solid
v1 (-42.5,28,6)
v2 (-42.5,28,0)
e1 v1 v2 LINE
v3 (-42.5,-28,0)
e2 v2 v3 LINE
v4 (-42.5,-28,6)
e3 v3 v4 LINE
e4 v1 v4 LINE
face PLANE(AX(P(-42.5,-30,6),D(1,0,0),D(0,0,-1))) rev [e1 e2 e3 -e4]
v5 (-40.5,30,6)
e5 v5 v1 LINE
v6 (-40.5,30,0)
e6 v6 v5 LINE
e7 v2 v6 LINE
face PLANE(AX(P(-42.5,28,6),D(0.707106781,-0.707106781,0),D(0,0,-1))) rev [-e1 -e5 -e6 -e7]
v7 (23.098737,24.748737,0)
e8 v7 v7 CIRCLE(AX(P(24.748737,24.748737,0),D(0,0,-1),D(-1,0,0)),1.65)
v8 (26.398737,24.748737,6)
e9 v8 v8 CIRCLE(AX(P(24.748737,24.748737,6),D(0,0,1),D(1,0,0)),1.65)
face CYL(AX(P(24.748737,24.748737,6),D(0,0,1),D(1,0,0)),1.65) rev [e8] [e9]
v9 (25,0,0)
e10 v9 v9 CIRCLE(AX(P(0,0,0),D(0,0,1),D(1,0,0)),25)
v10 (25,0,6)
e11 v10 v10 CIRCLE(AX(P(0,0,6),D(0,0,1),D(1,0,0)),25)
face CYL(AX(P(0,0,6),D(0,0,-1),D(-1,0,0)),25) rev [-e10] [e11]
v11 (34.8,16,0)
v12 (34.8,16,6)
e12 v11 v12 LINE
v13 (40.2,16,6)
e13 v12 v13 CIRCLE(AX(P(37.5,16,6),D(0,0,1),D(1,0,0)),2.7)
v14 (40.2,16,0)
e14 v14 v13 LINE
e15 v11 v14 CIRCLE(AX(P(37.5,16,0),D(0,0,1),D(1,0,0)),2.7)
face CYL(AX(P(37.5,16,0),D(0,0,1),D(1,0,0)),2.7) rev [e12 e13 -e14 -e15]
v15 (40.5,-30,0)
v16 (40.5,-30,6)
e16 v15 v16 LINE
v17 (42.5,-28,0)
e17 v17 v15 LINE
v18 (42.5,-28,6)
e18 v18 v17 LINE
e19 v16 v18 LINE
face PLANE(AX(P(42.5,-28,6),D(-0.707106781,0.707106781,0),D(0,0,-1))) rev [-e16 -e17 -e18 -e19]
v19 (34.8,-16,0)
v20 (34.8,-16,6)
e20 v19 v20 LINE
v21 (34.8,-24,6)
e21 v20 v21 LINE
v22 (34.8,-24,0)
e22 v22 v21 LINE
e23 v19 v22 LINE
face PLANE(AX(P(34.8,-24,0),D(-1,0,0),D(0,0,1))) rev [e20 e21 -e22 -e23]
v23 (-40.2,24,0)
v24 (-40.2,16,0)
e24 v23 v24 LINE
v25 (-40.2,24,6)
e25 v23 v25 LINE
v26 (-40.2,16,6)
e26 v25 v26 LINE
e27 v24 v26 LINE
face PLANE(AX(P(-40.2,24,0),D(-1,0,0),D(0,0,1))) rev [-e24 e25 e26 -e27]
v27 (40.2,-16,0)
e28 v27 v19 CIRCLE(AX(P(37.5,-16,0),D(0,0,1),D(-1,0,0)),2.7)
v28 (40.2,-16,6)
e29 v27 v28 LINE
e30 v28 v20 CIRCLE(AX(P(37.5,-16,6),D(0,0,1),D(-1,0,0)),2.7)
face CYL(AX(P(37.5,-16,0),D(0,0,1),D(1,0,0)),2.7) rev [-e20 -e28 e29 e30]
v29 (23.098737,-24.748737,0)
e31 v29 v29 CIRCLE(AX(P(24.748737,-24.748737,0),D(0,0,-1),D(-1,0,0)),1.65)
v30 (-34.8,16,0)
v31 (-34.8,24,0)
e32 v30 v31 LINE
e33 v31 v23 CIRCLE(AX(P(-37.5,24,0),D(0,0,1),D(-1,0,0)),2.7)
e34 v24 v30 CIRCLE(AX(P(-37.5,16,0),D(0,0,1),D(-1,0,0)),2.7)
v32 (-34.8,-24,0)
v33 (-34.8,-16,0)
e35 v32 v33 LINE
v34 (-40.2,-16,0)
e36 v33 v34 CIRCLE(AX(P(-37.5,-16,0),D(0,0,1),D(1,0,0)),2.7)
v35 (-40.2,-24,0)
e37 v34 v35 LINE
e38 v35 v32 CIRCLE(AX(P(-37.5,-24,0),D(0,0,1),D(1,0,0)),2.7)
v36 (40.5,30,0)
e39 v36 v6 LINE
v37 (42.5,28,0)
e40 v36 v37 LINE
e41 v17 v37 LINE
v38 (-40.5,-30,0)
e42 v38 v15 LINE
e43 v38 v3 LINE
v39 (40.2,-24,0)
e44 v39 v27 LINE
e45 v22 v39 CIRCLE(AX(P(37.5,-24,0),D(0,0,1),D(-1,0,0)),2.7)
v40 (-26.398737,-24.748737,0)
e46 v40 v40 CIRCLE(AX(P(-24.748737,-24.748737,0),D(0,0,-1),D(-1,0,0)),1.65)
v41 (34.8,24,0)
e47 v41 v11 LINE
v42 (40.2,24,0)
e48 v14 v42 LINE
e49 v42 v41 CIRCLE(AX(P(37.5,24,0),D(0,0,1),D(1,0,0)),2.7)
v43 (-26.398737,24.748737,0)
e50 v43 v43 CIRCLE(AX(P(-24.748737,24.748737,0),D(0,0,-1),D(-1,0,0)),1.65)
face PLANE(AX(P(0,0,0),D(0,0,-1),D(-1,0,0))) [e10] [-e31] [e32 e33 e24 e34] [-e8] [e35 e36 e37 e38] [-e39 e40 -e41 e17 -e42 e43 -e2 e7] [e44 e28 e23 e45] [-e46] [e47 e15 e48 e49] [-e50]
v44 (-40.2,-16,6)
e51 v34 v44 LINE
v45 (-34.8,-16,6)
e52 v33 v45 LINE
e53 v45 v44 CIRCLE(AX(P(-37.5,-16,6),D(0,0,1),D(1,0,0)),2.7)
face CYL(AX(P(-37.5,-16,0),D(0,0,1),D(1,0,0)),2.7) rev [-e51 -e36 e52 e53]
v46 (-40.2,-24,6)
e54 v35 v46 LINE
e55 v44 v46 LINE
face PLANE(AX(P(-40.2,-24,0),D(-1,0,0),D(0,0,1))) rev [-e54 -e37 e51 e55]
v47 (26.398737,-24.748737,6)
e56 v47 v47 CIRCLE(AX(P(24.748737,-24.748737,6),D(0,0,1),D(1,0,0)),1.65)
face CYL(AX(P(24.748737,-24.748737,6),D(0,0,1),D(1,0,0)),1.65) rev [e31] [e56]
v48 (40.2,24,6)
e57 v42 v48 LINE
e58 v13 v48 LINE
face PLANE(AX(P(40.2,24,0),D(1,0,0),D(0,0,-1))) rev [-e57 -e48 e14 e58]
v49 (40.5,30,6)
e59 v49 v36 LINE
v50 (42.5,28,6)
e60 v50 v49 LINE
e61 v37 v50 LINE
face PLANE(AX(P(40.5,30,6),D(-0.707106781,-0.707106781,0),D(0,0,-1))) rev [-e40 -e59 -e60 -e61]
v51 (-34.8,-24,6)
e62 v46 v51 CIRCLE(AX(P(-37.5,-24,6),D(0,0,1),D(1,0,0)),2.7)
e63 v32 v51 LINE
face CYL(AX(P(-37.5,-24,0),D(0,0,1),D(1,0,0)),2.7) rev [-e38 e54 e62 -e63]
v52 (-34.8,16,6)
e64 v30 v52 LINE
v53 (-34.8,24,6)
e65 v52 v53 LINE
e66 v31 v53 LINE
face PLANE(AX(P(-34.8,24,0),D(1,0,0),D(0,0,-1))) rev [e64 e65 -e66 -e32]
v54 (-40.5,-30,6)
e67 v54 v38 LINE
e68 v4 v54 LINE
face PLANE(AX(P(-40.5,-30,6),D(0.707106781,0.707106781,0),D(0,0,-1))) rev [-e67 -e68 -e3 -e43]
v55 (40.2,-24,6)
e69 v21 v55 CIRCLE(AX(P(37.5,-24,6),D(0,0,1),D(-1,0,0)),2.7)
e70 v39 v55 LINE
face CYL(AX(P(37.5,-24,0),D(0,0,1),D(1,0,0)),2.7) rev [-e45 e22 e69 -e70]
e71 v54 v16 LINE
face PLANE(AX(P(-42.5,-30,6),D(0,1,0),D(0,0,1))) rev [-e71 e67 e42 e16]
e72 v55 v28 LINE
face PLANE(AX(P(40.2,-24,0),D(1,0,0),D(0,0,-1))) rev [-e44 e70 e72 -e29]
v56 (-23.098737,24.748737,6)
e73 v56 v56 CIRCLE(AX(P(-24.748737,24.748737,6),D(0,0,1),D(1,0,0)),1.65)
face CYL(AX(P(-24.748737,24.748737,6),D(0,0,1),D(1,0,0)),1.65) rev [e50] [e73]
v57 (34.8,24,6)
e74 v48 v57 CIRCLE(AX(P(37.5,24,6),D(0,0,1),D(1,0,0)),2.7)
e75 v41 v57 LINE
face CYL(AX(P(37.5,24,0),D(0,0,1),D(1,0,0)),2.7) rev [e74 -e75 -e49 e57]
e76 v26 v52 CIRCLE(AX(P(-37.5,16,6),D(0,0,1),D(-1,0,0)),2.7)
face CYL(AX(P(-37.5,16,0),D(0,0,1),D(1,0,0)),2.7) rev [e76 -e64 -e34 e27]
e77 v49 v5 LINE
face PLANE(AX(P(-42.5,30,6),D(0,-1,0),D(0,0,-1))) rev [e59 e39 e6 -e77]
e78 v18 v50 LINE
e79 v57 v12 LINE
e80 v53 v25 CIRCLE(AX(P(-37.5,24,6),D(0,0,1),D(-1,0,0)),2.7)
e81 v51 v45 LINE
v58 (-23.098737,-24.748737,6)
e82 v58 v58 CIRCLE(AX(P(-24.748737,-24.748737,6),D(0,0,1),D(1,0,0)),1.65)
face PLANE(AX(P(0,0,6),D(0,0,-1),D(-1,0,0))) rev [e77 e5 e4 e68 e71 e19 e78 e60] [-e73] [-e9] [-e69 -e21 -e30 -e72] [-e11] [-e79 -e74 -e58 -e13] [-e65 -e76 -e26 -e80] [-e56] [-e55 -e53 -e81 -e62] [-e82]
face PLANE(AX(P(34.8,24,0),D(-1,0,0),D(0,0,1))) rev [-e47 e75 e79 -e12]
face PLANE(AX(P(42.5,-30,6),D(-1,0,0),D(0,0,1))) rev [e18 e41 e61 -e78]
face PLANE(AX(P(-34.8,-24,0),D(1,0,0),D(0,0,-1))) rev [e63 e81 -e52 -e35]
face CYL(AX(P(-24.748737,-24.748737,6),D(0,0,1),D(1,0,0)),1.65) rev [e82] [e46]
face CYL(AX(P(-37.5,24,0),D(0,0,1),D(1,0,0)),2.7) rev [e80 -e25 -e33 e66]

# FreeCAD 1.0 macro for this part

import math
import FreeCAD as App
import Part
import Sketcher

V = App.Vector
Q = App.Units.Quantity


def edges_at(feature, points):
    """Names of the edges that pass closest to the given points."""
    edges = feature.Shape.Edges
    near = lambda p: min(range(len(edges)), key=lambda i: edges[i].distToShape(Part.Vertex(*p))[0])
    return sorted({f"Edge{near(p) + 1}" for p in points})


def add_polygon(sketch, points):
    """Adds a closed chain of lines whose ends are joined by coincident constraints."""
    first, n = sketch.GeometryCount, len(points)
    for a, b in zip(points, points[1:] + points[:1]):
        sketch.addGeometry(Part.LineSegment(App.Vector(*a, 0), App.Vector(*b, 0)), False)
    for i in range(n):
        sketch.addConstraint(Sketcher.Constraint("Coincident", first + i, 2, first + (i + 1) % n, 1))

doc = App.newDocument("Part")
body = doc.addObject("PartDesign::Body", "Body")

sketch1 = doc.addObject("Sketcher::SketchObject", "Sketch")
body.addObject(sketch1)
sketch1.AttachmentSupport = (doc.XY_Plane, [""])
sketch1.MapMode = "FlatFace"
add_polygon(sketch1, [(-42.5, 30), (-42.5, -30), (42.5, -30), (42.5, 30)])
sketch1.addGeometry(Part.Circle(V(0, 0, 0), V(0, 0, 1), 25), False)
sketch1.addConstraint([
    Sketcher.Constraint("Vertical", 0),
    Sketcher.Constraint("Horizontal", 1),
    Sketcher.Constraint("Vertical", 2),
    Sketcher.Constraint("Horizontal", 3),
    Sketcher.Constraint("Coincident", 4, 3, -1, 1),
    Sketcher.Constraint("Symmetric", 0, 2, 2, 2, -1, 1),
    Sketcher.Constraint("Diameter", 4, Q("50 mm")),
    Sketcher.Constraint("DistanceX", 1, 1, 1, 2, Q("85 mm")),
    Sketcher.Constraint("DistanceY", 0, 2, 0, 1, Q("60 mm")),
])
pad1 = doc.addObject("PartDesign::Pad", "Pad")
body.addObject(pad1)
pad1.Profile = sketch1
pad1.Length = 6

sketch2 = doc.addObject("Sketcher::SketchObject", "Sketch001")
body.addObject(sketch2)
sketch2.AttachmentSupport = (doc.YZ_Plane, [""])
sketch2.MapMode = "FlatFace"
sketch2.AttachmentOffset = App.Placement(V(0, 0, 24.748737), App.Rotation())
add_polygon(sketch2, [(24.748737, -6.49142), (24.748737, 6), (23.098737, 6), (23.098737, -5.5)])
sketch2.addGeometry(Part.LineSegment(V(24.748737, 6, 0), V(24.748737, -6.49142, 0)), True)
sketch2.addConstraint([
    Sketcher.Constraint("Vertical", 0),
    Sketcher.Constraint("Horizontal", 1),
    Sketcher.Constraint("Vertical", 2),
    Sketcher.Constraint("Vertical", 4),
    Sketcher.Constraint("Coincident", 4, 1, 0, 2),
    Sketcher.Constraint("Equal", 0, 4),
    Sketcher.Constraint("Angle", 3, Q("-31 deg")),
    Sketcher.Constraint("DistanceY", 2, 2, 2, 1, Q("11.5 mm")),
    Sketcher.Constraint("DistanceY", -1, 1, 0, 2, Q("6 mm")),
    Sketcher.Constraint("DistanceX", 1, 2, 1, 1, Q("1.65 mm")),
    Sketcher.Constraint("DistanceX", -1, 1, 0, 2, Q("24.748737 mm")),
])
groove = doc.addObject("PartDesign::Groove", "Groove")
body.addObject(groove)
groove.Profile = sketch2
groove.ReferenceAxis = (sketch2, ["Axis0"])
groove.Angle = 360
doc.recompute()

polarpattern = doc.addObject("PartDesign::PolarPattern", "PolarPattern")
body.addObject(polarpattern)
polarpattern.Originals = [groove]
polarpattern.Axis = (doc.Z_Axis, [""])
polarpattern.Angle = 360
polarpattern.Occurrences = 4
body.Tip = polarpattern

sketch3 = doc.addObject("Sketcher::SketchObject", "Sketch002")
body.addObject(sketch3)
sketch3.AttachmentSupport = (doc.XY_Plane, [""])
sketch3.MapMode = "FlatFace"
sketch3.AttachmentOffset = App.Placement(V(0, 0, 6), App.Rotation())
sketch3.addGeometry([
    Part.LineSegment(V(40.2, 16, 0), V(40.2, 24, 0)),
    Part.ArcOfCircle(Part.Circle(V(37.5, 24, 0), V(0, 0, 1), 2.7), math.radians(0), math.radians(180)),
    Part.LineSegment(V(34.8, 24, 0), V(34.8, 16, 0)),
    Part.ArcOfCircle(Part.Circle(V(37.5, 16, 0), V(0, 0, 1), 2.7), math.radians(180), math.radians(360)),
    Part.LineSegment(V(40.2, -24, 0), V(40.2, -16, 0)),
    Part.ArcOfCircle(Part.Circle(V(37.5, -16, 0), V(0, 0, 1), 2.7), math.radians(0), math.radians(180)),
    Part.LineSegment(V(34.8, -16, 0), V(34.8, -24, 0)),
    Part.ArcOfCircle(Part.Circle(V(37.5, -24, 0), V(0, 0, 1), 2.7), math.radians(180), math.radians(360)),
    Part.LineSegment(V(-40.2, 24, 0), V(-40.2, 16, 0)),
    Part.ArcOfCircle(Part.Circle(V(-37.5, 16, 0), V(0, 0, 1), 2.7), math.radians(180), math.radians(360)),
    Part.LineSegment(V(-34.8, 16, 0), V(-34.8, 24, 0)),
    Part.ArcOfCircle(Part.Circle(V(-37.5, 24, 0), V(0, 0, 1), 2.7), math.radians(0), math.radians(180)),
    Part.LineSegment(V(-40.2, -16, 0), V(-40.2, -24, 0)),
    Part.ArcOfCircle(Part.Circle(V(-37.5, -24, 0), V(0, 0, 1), 2.7), math.radians(180), math.radians(360)),
    Part.LineSegment(V(-34.8, -24, 0), V(-34.8, -16, 0)),
    Part.ArcOfCircle(Part.Circle(V(-37.5, -16, 0), V(0, 0, 1), 2.7), math.radians(0), math.radians(180)),
], False)
sketch3.addConstraint([
    Sketcher.Constraint("Tangent", 0, 2, 1, 1),
    Sketcher.Constraint("Tangent", 1, 2, 2, 1),
    Sketcher.Constraint("Tangent", 2, 2, 3, 1),
    Sketcher.Constraint("Tangent", 3, 2, 0, 1),
    Sketcher.Constraint("Tangent", 4, 2, 5, 1),
    Sketcher.Constraint("Tangent", 5, 2, 6, 1),
    Sketcher.Constraint("Tangent", 6, 2, 7, 1),
    Sketcher.Constraint("Tangent", 7, 2, 4, 1),
    Sketcher.Constraint("Tangent", 8, 2, 9, 1),
    Sketcher.Constraint("Tangent", 9, 2, 10, 1),
    Sketcher.Constraint("Tangent", 10, 2, 11, 1),
    Sketcher.Constraint("Tangent", 11, 2, 8, 1),
    Sketcher.Constraint("Tangent", 12, 2, 13, 1),
    Sketcher.Constraint("Tangent", 13, 2, 14, 1),
    Sketcher.Constraint("Tangent", 14, 2, 15, 1),
    Sketcher.Constraint("Tangent", 15, 2, 12, 1),
    Sketcher.Constraint("Vertical", 0),
    Sketcher.Constraint("Vertical", 2),
    Sketcher.Constraint("Vertical", 4),
    Sketcher.Constraint("Vertical", 6),
    Sketcher.Constraint("Vertical", 8),
    Sketcher.Constraint("Vertical", 10),
    Sketcher.Constraint("Vertical", 12),
    Sketcher.Constraint("Vertical", 14),
    Sketcher.Constraint("Equal", 3, 5),
    Sketcher.Constraint("Equal", 7, 9),
    Sketcher.Constraint("Equal", 11, 13),
    Sketcher.Constraint("Symmetric", 5, 3, 9, 3, -1, 1),
    Sketcher.Constraint("Symmetric", 1, 3, 13, 3, -1, 1),
    Sketcher.Constraint("Symmetric", 3, 3, 9, 3, -2),
    Sketcher.Constraint("Horizontal", 1, 3, 11, 3),
    Sketcher.Constraint("Horizontal", 7, 3, 13, 3),
    Sketcher.Constraint("Horizontal", 5, 3, 15, 3),
    Sketcher.Constraint("Radius", 1, Q("2.7 mm")),
    Sketcher.Constraint("DistanceY", 0, 1, 0, 2, Q("8 mm")),
    Sketcher.Constraint("DistanceY", -1, 1, 1, 3, Q("24 mm")),
    Sketcher.Constraint("DistanceX", 9, 3, 3, 3, Q("75 mm")),
])
pocket1 = doc.addObject("PartDesign::Pocket", "Pocket")
body.addObject(pocket1)
pocket1.Profile = sketch3
pocket1.Length = 6
doc.recompute()

chamfer = doc.addObject("PartDesign::Chamfer", "Chamfer")
body.addObject(chamfer)
chamfer.Base = (pocket1, edges_at(pocket1, [
    (42.5, -30, 3),
    (-42.5, -30, 3),
    (-42.5, 30, 3),
    (42.5, 30, 3),
]))
chamfer.Size = 2

doc.recompute()
